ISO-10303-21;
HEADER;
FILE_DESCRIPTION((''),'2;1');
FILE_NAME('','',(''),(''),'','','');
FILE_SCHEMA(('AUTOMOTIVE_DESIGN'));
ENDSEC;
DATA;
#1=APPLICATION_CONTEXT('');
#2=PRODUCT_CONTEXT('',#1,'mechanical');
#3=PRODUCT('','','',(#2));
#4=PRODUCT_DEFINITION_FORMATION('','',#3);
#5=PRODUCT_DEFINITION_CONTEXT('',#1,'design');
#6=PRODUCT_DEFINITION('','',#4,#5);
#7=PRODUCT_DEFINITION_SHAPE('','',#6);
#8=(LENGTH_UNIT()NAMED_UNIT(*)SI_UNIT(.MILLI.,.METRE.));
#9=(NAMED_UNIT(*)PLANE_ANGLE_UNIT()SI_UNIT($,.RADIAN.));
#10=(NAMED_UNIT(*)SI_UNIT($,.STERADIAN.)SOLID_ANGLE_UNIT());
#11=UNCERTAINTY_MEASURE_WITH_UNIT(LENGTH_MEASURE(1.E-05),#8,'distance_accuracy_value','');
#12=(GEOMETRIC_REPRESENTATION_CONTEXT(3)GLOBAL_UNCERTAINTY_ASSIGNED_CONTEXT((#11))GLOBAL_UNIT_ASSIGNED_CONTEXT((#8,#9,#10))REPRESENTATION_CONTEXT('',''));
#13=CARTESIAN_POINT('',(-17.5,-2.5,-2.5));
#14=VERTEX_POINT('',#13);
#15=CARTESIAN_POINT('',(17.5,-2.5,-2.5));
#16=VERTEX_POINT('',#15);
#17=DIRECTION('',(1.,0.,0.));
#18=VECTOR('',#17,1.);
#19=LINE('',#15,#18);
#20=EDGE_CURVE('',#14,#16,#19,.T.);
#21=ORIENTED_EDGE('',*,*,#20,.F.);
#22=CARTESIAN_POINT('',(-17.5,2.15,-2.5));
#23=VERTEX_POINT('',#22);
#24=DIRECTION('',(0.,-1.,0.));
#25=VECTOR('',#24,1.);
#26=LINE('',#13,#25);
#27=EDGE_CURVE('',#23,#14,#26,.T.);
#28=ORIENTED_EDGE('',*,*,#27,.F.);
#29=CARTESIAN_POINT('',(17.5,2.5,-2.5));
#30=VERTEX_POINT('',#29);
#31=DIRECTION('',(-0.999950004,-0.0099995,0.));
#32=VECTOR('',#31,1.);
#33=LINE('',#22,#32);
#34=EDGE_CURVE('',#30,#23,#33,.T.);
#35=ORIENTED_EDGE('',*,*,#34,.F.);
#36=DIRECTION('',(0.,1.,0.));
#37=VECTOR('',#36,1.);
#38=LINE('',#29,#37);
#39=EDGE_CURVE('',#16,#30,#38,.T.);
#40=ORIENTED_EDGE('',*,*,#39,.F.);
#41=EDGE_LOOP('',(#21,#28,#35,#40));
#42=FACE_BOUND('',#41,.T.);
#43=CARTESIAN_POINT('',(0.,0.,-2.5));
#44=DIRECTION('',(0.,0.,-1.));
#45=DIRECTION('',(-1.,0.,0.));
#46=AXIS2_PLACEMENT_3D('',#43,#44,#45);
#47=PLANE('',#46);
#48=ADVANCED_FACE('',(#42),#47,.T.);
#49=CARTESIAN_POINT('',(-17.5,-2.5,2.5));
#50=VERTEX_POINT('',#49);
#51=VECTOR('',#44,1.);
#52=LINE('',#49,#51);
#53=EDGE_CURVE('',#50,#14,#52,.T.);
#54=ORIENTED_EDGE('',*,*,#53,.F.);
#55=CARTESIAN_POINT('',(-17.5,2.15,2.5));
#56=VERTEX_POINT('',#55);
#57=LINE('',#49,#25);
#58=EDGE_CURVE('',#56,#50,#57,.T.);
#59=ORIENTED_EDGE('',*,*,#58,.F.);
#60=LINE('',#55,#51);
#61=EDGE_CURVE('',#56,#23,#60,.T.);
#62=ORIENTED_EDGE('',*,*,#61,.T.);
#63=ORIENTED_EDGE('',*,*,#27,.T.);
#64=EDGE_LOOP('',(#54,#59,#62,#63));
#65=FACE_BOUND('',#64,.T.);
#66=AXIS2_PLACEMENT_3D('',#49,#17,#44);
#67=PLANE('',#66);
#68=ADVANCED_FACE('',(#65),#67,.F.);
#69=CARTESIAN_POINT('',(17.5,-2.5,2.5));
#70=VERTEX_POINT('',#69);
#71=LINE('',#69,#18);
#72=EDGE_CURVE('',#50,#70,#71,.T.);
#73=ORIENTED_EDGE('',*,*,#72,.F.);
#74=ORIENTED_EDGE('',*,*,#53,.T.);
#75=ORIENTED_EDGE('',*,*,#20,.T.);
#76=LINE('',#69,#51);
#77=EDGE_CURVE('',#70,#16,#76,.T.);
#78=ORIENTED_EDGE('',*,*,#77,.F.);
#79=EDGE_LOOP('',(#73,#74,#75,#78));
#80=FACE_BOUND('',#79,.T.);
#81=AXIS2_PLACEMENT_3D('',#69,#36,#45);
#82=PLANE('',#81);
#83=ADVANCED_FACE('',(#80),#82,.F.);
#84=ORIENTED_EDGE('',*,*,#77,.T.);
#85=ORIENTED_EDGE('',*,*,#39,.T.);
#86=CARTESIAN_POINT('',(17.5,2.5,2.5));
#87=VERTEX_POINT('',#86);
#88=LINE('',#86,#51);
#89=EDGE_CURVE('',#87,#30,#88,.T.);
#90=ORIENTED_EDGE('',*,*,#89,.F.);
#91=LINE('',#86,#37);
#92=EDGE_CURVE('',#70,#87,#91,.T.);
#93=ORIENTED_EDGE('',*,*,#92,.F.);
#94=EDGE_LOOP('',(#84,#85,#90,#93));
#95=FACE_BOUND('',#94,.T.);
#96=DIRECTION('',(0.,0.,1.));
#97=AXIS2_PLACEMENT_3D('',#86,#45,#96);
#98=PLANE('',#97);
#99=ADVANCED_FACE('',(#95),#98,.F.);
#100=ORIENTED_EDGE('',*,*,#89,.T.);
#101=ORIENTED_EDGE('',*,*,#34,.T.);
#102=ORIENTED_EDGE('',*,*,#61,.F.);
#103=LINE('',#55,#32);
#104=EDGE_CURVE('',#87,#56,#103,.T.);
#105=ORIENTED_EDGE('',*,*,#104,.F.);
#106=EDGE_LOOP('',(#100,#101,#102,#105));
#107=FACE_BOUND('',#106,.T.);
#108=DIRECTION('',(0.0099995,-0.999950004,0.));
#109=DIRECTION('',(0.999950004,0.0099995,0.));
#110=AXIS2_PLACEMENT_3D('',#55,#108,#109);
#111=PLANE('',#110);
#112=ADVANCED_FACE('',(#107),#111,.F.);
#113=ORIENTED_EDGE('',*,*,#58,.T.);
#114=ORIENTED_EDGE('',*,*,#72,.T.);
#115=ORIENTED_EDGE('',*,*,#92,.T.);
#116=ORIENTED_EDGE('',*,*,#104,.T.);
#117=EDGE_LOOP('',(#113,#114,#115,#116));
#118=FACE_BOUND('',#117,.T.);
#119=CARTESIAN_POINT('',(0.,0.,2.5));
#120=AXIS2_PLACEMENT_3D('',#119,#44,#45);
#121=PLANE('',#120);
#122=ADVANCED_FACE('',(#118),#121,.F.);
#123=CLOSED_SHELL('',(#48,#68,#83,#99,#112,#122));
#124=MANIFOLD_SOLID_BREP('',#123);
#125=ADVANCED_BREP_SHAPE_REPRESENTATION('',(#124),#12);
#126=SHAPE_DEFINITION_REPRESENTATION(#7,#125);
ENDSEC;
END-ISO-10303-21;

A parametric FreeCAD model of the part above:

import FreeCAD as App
import Part
import Sketcher
from FreeCAD import Vector
Q = App.Units.Quantity


def add_polygon(sketch, points):
    """Adds a closed chain of lines whose ends are joined by coincident constraints."""
    first, n = sketch.GeometryCount, len(points)
    for a, b in zip(points, points[1:] + points[:1]):
        sketch.addGeometry(Part.LineSegment(App.Vector(*a, 0), App.Vector(*b, 0)), False)
    for i in range(n):
        sketch.addConstraint(Sketcher.Constraint("Coincident", first + i, 2, first + (i + 1) % n, 1))

doc = App.newDocument("Part")
body = doc.addObject("PartDesign::Body", "Body")

# Sketch on XY plane
sketch1 = body.newObject("Sketcher::SketchObject", "Sketch")
sketch1.AttachmentSupport = (doc.getObject("XY_Plane"), [""])
sketch1.MapMode = "FlatFace"
add_polygon(sketch1, [(17.5, -2.5), (17.5, 2.5), (-17.5, 2.1), (-17.5, -2.5)])  # lines 0-3
sketch1.addConstraint([
    Sketcher.Constraint("Vertical", 0),
    Sketcher.Constraint("Vertical", 2),
    Sketcher.Constraint("Horizontal", 3),
    Sketcher.Constraint("Symmetric", 0, 2, 2, 2, -1, 1),
    Sketcher.Constraint("DistanceX", 3, 1, 3, 2, Q("35 mm")),
    Sketcher.Constraint("DistanceY", 0, 1, 0, 2, Q("5 mm")),
    Sketcher.Constraint("DistanceY", 2, 2, 2, 1, Q("4.65 mm")),
])
pad1 = body.newObject("PartDesign::Pad", "Pad")
pad1.Profile = sketch1
pad1.Length = 5
pad1.Midplane = True

doc.recompute()
